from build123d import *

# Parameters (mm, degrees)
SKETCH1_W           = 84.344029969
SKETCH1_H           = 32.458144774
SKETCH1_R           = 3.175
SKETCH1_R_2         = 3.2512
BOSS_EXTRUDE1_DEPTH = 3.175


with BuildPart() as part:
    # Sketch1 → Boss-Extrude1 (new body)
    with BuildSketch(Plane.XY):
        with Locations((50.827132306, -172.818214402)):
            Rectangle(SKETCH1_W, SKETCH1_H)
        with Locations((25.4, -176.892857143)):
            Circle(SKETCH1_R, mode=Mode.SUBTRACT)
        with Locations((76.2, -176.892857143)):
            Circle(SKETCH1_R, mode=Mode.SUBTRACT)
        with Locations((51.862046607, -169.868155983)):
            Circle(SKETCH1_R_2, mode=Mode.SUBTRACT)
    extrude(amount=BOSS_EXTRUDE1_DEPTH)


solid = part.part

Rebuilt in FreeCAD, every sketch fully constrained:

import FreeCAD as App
import Part
import Sketcher

V = App.Vector
Q = App.Units.Quantity


def add_polygon(sketch, points):
    """Adds a closed chain of lines whose ends are joined by coincident constraints."""
    first, n = sketch.GeometryCount, len(points)
    for a, b in zip(points, points[1:] + points[:1]):
        sketch.addGeometry(Part.LineSegment(App.Vector(*a, 0), App.Vector(*b, 0)), False)
    for i in range(n):
        sketch.addConstraint(Sketcher.Constraint("Coincident", first + i, 2, first + (i + 1) % n, 1))

doc = App.newDocument("Part")
body = doc.addObject("PartDesign::Body", "Body")

sketch1 = doc.addObject("Sketcher::SketchObject", "Sketch")
body.addObject(sketch1)
sketch1.AttachmentSupport = (doc.XY_Plane, [""])
sketch1.MapMode = "FlatFace"
add_polygon(sketch1, [(8.7, -156.6), (8.7, -189), (93, -189), (93, -156.6)])
sketch1.addGeometry(Part.Circle(V(25.4, -176.9, 0), V(0, 0, 1), 3.2), False)
sketch1.addGeometry(Part.Circle(V(76.2, -176.9, 0), V(0, 0, 1), 3.2), False)
sketch1.addGeometry(Part.Circle(V(51.9, -169.9, 0), V(0, 0, 1), 3.3), False)
sketch1.addConstraint([
    Sketcher.Constraint("Vertical", 0),
    Sketcher.Constraint("Horizontal", 1),
    Sketcher.Constraint("Vertical", 2),
    Sketcher.Constraint("Horizontal", 3),
    Sketcher.Constraint("Equal", 4, 5),
    Sketcher.Constraint("Horizontal", 4, 3, 5, 3),
    Sketcher.Constraint("Diameter", 4, Q("0.25 in")),
    Sketcher.Constraint("Diameter", 6, Q("0.256 in")),
    Sketcher.Constraint("DistanceX", -1, 1, 4, 3, Q("1 in")),
    Sketcher.Constraint("DistanceX", -1, 1, 5, 3, Q("3 in")),
    Sketcher.Constraint("DistanceX", 1, 1, 1, 2, Q("84.34403 mm")),
    Sketcher.Constraint("DistanceY", 5, 3, 6, 3, Q("7.024701 mm")),
    Sketcher.Constraint("DistanceX", 6, 3, 1, 2, Q("41.137101 mm")),
    Sketcher.Constraint("DistanceY", 0, 2, 0, 1, Q("32.458145 mm")),
    Sketcher.Constraint("DistanceY", 0, 2, 4, 3, Q("12.15443 mm")),
    Sketcher.Constraint("DistanceY", 4, 3, -1, 1, Q("176.892857 mm")),
    Sketcher.Constraint("DistanceX", -1, 1, 6, 3, Q("51.862047 mm")),
])
pad1 = doc.addObject("PartDesign::Pad", "Pad")
body.addObject(pad1)
pad1.Profile = sketch1
pad1.Length = Q("0.125 in")

doc.recompute()
